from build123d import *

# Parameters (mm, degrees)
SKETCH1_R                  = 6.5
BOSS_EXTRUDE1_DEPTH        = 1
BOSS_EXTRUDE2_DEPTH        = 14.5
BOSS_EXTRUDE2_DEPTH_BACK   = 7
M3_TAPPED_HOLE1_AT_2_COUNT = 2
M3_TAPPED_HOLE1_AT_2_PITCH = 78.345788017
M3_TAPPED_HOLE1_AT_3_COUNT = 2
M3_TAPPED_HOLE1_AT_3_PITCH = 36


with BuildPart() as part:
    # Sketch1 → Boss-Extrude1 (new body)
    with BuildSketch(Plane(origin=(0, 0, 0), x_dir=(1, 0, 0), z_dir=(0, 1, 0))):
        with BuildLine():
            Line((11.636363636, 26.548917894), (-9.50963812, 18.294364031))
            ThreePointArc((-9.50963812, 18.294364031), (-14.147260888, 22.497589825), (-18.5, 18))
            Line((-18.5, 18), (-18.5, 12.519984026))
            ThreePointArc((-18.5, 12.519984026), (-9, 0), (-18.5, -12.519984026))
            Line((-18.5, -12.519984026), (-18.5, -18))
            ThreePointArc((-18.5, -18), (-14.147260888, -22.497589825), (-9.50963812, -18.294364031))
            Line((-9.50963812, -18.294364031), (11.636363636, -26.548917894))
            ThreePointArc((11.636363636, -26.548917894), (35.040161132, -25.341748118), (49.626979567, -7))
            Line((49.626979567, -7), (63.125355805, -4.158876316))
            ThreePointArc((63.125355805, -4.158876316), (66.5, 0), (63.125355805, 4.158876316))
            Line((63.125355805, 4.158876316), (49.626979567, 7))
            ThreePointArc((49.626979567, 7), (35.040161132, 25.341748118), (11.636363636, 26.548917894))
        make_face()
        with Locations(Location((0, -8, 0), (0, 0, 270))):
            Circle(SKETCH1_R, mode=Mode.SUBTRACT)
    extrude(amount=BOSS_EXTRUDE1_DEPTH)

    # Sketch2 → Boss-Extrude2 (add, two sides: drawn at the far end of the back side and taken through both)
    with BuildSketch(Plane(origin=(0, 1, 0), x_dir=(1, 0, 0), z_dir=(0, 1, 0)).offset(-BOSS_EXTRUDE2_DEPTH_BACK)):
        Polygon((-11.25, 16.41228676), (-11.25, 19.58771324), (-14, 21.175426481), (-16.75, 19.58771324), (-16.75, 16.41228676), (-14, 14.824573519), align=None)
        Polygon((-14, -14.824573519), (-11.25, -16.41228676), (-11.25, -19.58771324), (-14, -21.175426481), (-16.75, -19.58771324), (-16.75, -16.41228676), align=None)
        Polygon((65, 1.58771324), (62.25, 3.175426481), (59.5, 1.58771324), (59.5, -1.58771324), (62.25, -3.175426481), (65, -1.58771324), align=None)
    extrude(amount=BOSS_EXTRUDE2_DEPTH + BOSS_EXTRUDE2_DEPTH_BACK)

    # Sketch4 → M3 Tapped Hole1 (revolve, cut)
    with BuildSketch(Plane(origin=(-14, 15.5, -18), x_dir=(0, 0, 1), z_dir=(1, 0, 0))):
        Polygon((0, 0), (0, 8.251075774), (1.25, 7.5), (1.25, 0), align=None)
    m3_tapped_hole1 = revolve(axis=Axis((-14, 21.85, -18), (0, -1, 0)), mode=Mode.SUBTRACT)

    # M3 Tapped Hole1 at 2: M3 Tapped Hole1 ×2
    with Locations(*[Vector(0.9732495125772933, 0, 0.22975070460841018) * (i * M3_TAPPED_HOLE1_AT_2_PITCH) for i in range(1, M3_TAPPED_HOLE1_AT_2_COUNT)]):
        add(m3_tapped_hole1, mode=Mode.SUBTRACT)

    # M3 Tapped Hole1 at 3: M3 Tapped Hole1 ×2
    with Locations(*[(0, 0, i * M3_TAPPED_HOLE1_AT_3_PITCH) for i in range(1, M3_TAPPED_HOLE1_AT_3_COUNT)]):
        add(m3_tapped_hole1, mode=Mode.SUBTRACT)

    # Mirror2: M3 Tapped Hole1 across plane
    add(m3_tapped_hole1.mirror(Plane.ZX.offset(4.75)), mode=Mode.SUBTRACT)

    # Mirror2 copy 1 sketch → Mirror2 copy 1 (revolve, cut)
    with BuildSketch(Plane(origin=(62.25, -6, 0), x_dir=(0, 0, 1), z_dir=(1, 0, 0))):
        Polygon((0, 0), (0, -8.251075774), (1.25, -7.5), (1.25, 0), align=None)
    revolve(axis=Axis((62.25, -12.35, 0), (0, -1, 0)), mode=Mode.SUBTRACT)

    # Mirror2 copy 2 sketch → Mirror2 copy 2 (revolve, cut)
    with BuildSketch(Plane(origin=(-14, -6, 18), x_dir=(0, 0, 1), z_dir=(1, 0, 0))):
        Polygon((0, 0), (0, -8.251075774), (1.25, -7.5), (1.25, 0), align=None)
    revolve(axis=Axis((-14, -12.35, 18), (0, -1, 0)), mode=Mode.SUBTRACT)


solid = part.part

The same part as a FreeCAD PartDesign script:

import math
import FreeCAD as App
import Part
import Sketcher

V = App.Vector
Q = App.Units.Quantity

doc = App.newDocument("Part")
body = doc.addObject("PartDesign::Body", "Body")

# Sketch on XZ plane
sketch1 = body.newObject("Sketcher::SketchObject", "Sketch")
sketch1.AttachmentSupport = (doc.getObject("XZ_Plane"), [""])
sketch1.MapMode = "FlatFace"
sketch1.addGeometry(Part.LineSegment(V(11.636364, -26.548918, 0), V(-9.509638, -18.294364, 0)), False)
sketch1.addGeometry(Part.ArcOfCircle(Part.Circle(V(-14, -18, 0), V(0, 0, 1), 4.5), math.radians(180), math.radians(356.249363)), False)
sketch1.addGeometry(Part.LineSegment(V(-18.5, -18, 0), V(-18.5, -12.519984, 0)), False)
sketch1.addGeometry(Part.ArcOfCircle(Part.Circle(V(-22, 0, 0), V(0, 0, 1), 13), math.radians(-74.381502), math.radians(74.381502)), False)
sketch1.addGeometry(Part.LineSegment(V(-18.5, 12.519984, 0), V(-18.5, 18, 0)), False)
sketch1.addGeometry(Part.ArcOfCircle(Part.Circle(V(-14, 18, 0), V(0, 0, 1), 4.5), math.radians(3.750637), math.radians(180)), False)
sketch1.addGeometry(Part.LineSegment(V(-9.509638, 18.294364, 0), V(11.636364, 26.548918, 0)), False)
sketch1.addGeometry(Part.ArcOfCircle(Part.Circle(V(22, 0, 0), V(0, 0, 1), 28.5), math.radians(14.218124), math.radians(111.323686)), False)
sketch1.addGeometry(Part.LineSegment(V(49.62698, 7, 0), V(63.125356, 4.158876, 0)), False)
sketch1.addGeometry(Part.ArcOfCircle(Part.Circle(V(62.25, 0, 0), V(0, 0, 1), 4.25), math.radians(-78.113942), math.radians(78.113942)), False)
sketch1.addGeometry(Part.LineSegment(V(63.125356, -4.158876, 0), V(49.62698, -7, 0)), False)
sketch1.addGeometry(Part.ArcOfCircle(Part.Circle(V(22, 0, 0), V(0, 0, 1), 28.5), math.radians(-111.323686), math.radians(-14.218124)), False)
sketch1.addGeometry(Part.Circle(V(0, 8, 0), V(0, 0, 1), 6.5), False)
sketch1.addConstraint(Sketcher.Constraint("Coincident", 0, 2, 1, 2))
sketch1.addConstraint(Sketcher.Constraint("Tangent", 1, 1, 2, 1))
sketch1.addConstraint(Sketcher.Constraint("Coincident", 2, 2, 3, 1))
sketch1.addConstraint(Sketcher.Constraint("Coincident", 3, 2, 4, 1))
sketch1.addConstraint(Sketcher.Constraint("Tangent", 4, 2, 5, 2))
sketch1.addConstraint(Sketcher.Constraint("Coincident", 5, 1, 6, 1))
sketch1.addConstraint(Sketcher.Constraint("Tangent", 6, 2, 7, 2))
sketch1.addConstraint(Sketcher.Constraint("Coincident", 7, 1, 8, 1))
sketch1.addConstraint(Sketcher.Constraint("Tangent", 8, 2, 9, 2))
sketch1.addConstraint(Sketcher.Constraint("Tangent", 9, 1, 10, 1))
sketch1.addConstraint(Sketcher.Constraint("Coincident", 10, 2, 11, 2))
sketch1.addConstraint(Sketcher.Constraint("Tangent", 11, 1, 0, 1))
sketch1.addConstraint(Sketcher.Constraint("Vertical", 2))
sketch1.addConstraint(Sketcher.Constraint("Vertical", 4))
sketch1.addConstraint(Sketcher.Constraint("Coincident", 11, 3, 7, 3))
sketch1.addConstraint(Sketcher.Constraint("Equal", 1, 5))
sketch1.addConstraint(Sketcher.Constraint("Equal", 7, 11))
sketch1.addConstraint(Sketcher.Constraint("Symmetric", 3, 3, 7, 3, -1, 1))
sketch1.addConstraint(Sketcher.Constraint("Symmetric", 1, 3, 5, 3, -1))
sketch1.addConstraint(Sketcher.Constraint("Symmetric", 8, 2, 9, 1, -1))
sketch1.addConstraint(Sketcher.Constraint("Symmetric", 6, 2, 11, 1, -1))
sketch1.addConstraint(Sketcher.Constraint("PointOnObject", 12, 3, -2))
sketch1.addConstraint(Sketcher.Constraint("Diameter", 12, Q("13 mm")))
sketch1.addConstraint(Sketcher.Constraint("Radius", 3, Q("13 mm")))
sketch1.addConstraint(Sketcher.Constraint("Radius", 1, Q("4.5 mm")))
sketch1.addConstraint(Sketcher.Constraint("Radius", 7, Q("28.5 mm")))
sketch1.addConstraint(Sketcher.Constraint("Radius", 9, Q("4.25 mm")))
sketch1.addConstraint(Sketcher.Constraint("DistanceX", 1, 3, -1, 1, Q("14 mm")))
sketch1.addConstraint(Sketcher.Constraint("DistanceY", 1, 3, -1, 1, Q("18 mm")))
sketch1.addConstraint(Sketcher.Constraint("DistanceX", 3, 3, -1, 1, Q("22 mm")))
sketch1.addConstraint(Sketcher.Constraint("DistanceY", -1, 1, 12, 3, Q("8 mm")))
sketch1.addConstraint(Sketcher.Constraint("DistanceY", -1, 1, 7, 1, Q("7 mm")))
sketch1.addConstraint(Sketcher.Constraint("DistanceX", -1, 1, 9, 3, Q("62.25 mm")))
sketch1.addConstraint(Sketcher.Constraint("DistanceX", 5, 1, 6, 2, Q("21.146002 mm")))
pad1 = body.newObject("PartDesign::Pad", "Pad")
pad1.Profile = sketch1
pad1.Length = 1
pad1.Reversed = True

# Sketch on XZ plane
sketch2 = body.newObject("Sketcher::SketchObject", "Sketch001")
sketch2.AttachmentSupport = (doc.getObject("XZ_Plane"), [""])
sketch2.MapMode = "FlatFace"
sketch2.AttachmentOffset = App.Placement(V(0, 0, -1), App.Rotation())
sketch2.addGeometry(Part.LineSegment(V(-11.25, -16.412287, 0), V(-11.25, -19.587713, 0)), False)
sketch2.addGeometry(Part.LineSegment(V(-11.25, -19.587713, 0), V(-14, -21.175426, 0)), False)
sketch2.addGeometry(Part.LineSegment(V(-14, -21.175426, 0), V(-16.75, -19.587713, 0)), False)
sketch2.addGeometry(Part.LineSegment(V(-16.75, -19.587713, 0), V(-16.75, -16.412287, 0)), False)
sketch2.addGeometry(Part.LineSegment(V(-16.75, -16.412287, 0), V(-14, -14.824574, 0)), False)
sketch2.addGeometry(Part.LineSegment(V(-14, -14.824574, 0), V(-11.25, -16.412287, 0)), False)
sketch2.addGeometry(Part.LineSegment(V(-11.25, 16.412287, 0), V(-14, 14.824574, 0)), False)
sketch2.addGeometry(Part.LineSegment(V(-14, 14.824574, 0), V(-16.75, 16.412287, 0)), False)
sketch2.addGeometry(Part.LineSegment(V(-16.75, 16.412287, 0), V(-16.75, 19.587713, 0)), False)
sketch2.addGeometry(Part.LineSegment(V(-16.75, 19.587713, 0), V(-14, 21.175426, 0)), False)
sketch2.addGeometry(Part.LineSegment(V(-14, 21.175426, 0), V(-11.25, 19.587713, 0)), False)
sketch2.addGeometry(Part.LineSegment(V(-11.25, 19.587713, 0), V(-11.25, 16.412287, 0)), False)
sketch2.addGeometry(Part.LineSegment(V(65, -1.587713, 0), V(62.25, -3.175426, 0)), False)
sketch2.addGeometry(Part.LineSegment(V(62.25, -3.175426, 0), V(59.5, -1.587713, 0)), False)
sketch2.addGeometry(Part.LineSegment(V(59.5, -1.587713, 0), V(59.5, 1.587713, 0)), False)
sketch2.addGeometry(Part.LineSegment(V(59.5, 1.587713, 0), V(62.25, 3.175426, 0)), False)
sketch2.addGeometry(Part.LineSegment(V(62.25, 3.175426, 0), V(65, 1.587713, 0)), False)
sketch2.addGeometry(Part.LineSegment(V(65, 1.587713, 0), V(65, -1.587713, 0)), False)
sketch2.addConstraint(Sketcher.Constraint("Coincident", 0, 2, 1, 1))
sketch2.addConstraint(Sketcher.Constraint("Coincident", 1, 2, 2, 1))
sketch2.addConstraint(Sketcher.Constraint("Coincident", 2, 2, 3, 1))
sketch2.addConstraint(Sketcher.Constraint("Coincident", 3, 2, 4, 1))
sketch2.addConstraint(Sketcher.Constraint("Coincident", 4, 2, 5, 1))
sketch2.addConstraint(Sketcher.Constraint("Coincident", 5, 2, 0, 1))
sketch2.addConstraint(Sketcher.Constraint("Coincident", 6, 2, 7, 1))
sketch2.addConstraint(Sketcher.Constraint("Coincident", 7, 2, 8, 1))
sketch2.addConstraint(Sketcher.Constraint("Coincident", 8, 2, 9, 1))
sketch2.addConstraint(Sketcher.Constraint("Coincident", 9, 2, 10, 1))
sketch2.addConstraint(Sketcher.Constraint("Coincident", 10, 2, 11, 1))
sketch2.addConstraint(Sketcher.Constraint("Coincident", 11, 2, 6, 1))
sketch2.addConstraint(Sketcher.Constraint("Coincident", 12, 2, 13, 1))
sketch2.addConstraint(Sketcher.Constraint("Coincident", 13, 2, 14, 1))
sketch2.addConstraint(Sketcher.Constraint("Coincident", 14, 2, 15, 1))
sketch2.addConstraint(Sketcher.Constraint("Coincident", 15, 2, 16, 1))
sketch2.addConstraint(Sketcher.Constraint("Coincident", 16, 2, 17, 1))
sketch2.addConstraint(Sketcher.Constraint("Coincident", 17, 2, 12, 1))
sketch2.addConstraint(Sketcher.Constraint("Vertical", 0))
sketch2.addConstraint(Sketcher.Constraint("Vertical", 3))
sketch2.addConstraint(Sketcher.Constraint("Vertical", 8))
sketch2.addConstraint(Sketcher.Constraint("Vertical", 11))
sketch2.addConstraint(Sketcher.Constraint("Vertical", 14))
sketch2.addConstraint(Sketcher.Constraint("Vertical", 17))
sketch2.addConstraint(Sketcher.Constraint("Symmetric", 4, 2, 6, 2, -1))
sketch2.addConstraint(Sketcher.Constraint("Symmetric", 3, 2, 7, 2, -1))
sketch2.addConstraint(Sketcher.Constraint("Symmetric", 1, 2, 9, 2, -1))
sketch2.addConstraint(Sketcher.Constraint("Symmetric", 0, 2, 10, 2, -1))
sketch2.addConstraint(Sketcher.Constraint("Symmetric", 12, 2, 15, 2, -1))
sketch2.addConstraint(Sketcher.Constraint("Parallel", 1, 4))
sketch2.addConstraint(Sketcher.Constraint("Parallel", 2, 5))
sketch2.addConstraint(Sketcher.Constraint("Parallel", 4, 6))
sketch2.addConstraint(Sketcher.Constraint("Parallel", 5, 7))
sketch2.addConstraint(Sketcher.Constraint("Parallel", 6, 9))
sketch2.addConstraint(Sketcher.Constraint("Parallel", 9, 12))
sketch2.addConstraint(Sketcher.Constraint("Parallel", 10, 13))
sketch2.addConstraint(Sketcher.Constraint("Parallel", 12, 15))
sketch2.addConstraint(Sketcher.Constraint("Parallel", 13, 16))
sketch2.addConstraint(Sketcher.Constraint("Horizontal", 0, 2, 2, 2))
sketch2.addConstraint(Sketcher.Constraint("Horizontal", 3, 2, 5, 2))
sketch2.addConstraint(Sketcher.Constraint("Horizontal", 14, 2, 16, 2))
sketch2.addConstraint(Sketcher.Constraint("Equal", 11, 14))
sketch2.addConstraint(Sketcher.Constraint("Equal", 10, 12))
sketch2.addConstraint(Sketcher.Constraint("Angle", 1, Q("-150 deg")))
sketch2.addConstraint(Sketcher.Constraint("DistanceX", 1, 2, -1, 1, Q("14 mm")))
sketch2.addConstraint(Sketcher.Constraint("DistanceX", -1, 1, 16, 2, Q("65 mm")))
sketch2.addConstraint(Sketcher.Constraint("DistanceY", 2, 2, 7, 2, Q("36 mm")))
sketch2.addConstraint(Sketcher.Constraint("DistanceX", -1, 1, 13, 2, Q("59.5 mm")))
sketch2.addConstraint(Sketcher.Constraint("DistanceY", 0, 2, 0, 1, Q("3.175426 mm")))
pad2 = body.newObject("PartDesign::Pad", "Pad001")
pad2.Profile = sketch2
pad2.Type = "TwoLengths"
pad2.Length = 14.5
pad2.Length2 = 7
pad2.Reversed = True

# Sketch on YZ plane
sketch3 = body.newObject("Sketcher::SketchObject", "Sketch002")
sketch3.AttachmentSupport = (doc.getObject("YZ_Plane"), [""])
sketch3.MapMode = "FlatFace"
sketch3.AttachmentOffset = App.Placement(V(0, 0, -14), App.Rotation())
sketch3.addGeometry(Part.LineSegment(V(7.248924, -18, 0), V(15.5, -18, 0)), False)
sketch3.addGeometry(Part.LineSegment(V(15.5, -18, 0), V(15.5, -16.75, 0)), False)
sketch3.addGeometry(Part.LineSegment(V(15.5, -16.75, 0), V(8, -16.75, 0)), False)
sketch3.addGeometry(Part.LineSegment(V(8, -16.75, 0), V(7.248924, -18, 0)), False)
sketch3.addGeometry(Part.LineSegment(V(15.5, -18, 0), V(7.248924, -18, 0)), True)  # axis
sketch3.addConstraint(Sketcher.Constraint("Coincident", 0, 2, 1, 1))
sketch3.addConstraint(Sketcher.Constraint("Coincident", 1, 2, 2, 1))
sketch3.addConstraint(Sketcher.Constraint("Coincident", 2, 2, 3, 1))
sketch3.addConstraint(Sketcher.Constraint("Coincident", 3, 2, 0, 1))
sketch3.addConstraint(Sketcher.Constraint("Horizontal", 0))
sketch3.addConstraint(Sketcher.Constraint("Vertical", 1))
sketch3.addConstraint(Sketcher.Constraint("Horizontal", 2))
sketch3.addConstraint(Sketcher.Constraint("Horizontal", 4))
sketch3.addConstraint(Sketcher.Constraint("Coincident", 4, 1, 0, 2))
sketch3.addConstraint(Sketcher.Constraint("Equal", 0, 4))
sketch3.addConstraint(Sketcher.Constraint("Angle", 3, Q("-121 deg")))
sketch3.addConstraint(Sketcher.Constraint("DistanceX", 2, 2, 2, 1, Q("7.5 mm")))
sketch3.addConstraint(Sketcher.Constraint("DistanceY", 0, 2, -1, 1, Q("18 mm")))
sketch3.addConstraint(Sketcher.Constraint("DistanceX", -1, 1, 2, 2, Q("8 mm")))
sketch3.addConstraint(Sketcher.Constraint("DistanceY", 1, 1, 1, 2, Q("1.25 mm")))
groove = body.newObject("PartDesign::Groove", "Groove")
groove.Profile = sketch3
groove.ReferenceAxis = (sketch3, ["Axis0"])
groove.Angle = 360
doc.recompute()

datumline = body.newObject("PartDesign::Line", "DatumLine")
datumline.Placement = App.Placement(V(0, 0, 0), App.Rotation(V(0, 0, 1), V(0.973249513, 0, 0.229750705)))
linearpattern = body.newObject("PartDesign::LinearPattern", "LinearPattern")
linearpattern.Originals = [groove]
linearpattern.Direction = (datumline, [""])
linearpattern.Mode = "offset"
linearpattern.Offset = 78.345788
linearpattern.Occurrences = 2
body.Tip = linearpattern
doc.recompute()

linearpattern2 = body.newObject("PartDesign::LinearPattern", "LinearPattern001")
linearpattern2.Originals = [groove]
linearpattern2.Direction = (doc.getObject("Z_Axis"), [""])
linearpattern2.Mode = "offset"
linearpattern2.Offset = 36
linearpattern2.Occurrences = 2
body.Tip = linearpattern2
doc.recompute()

datumplane = body.newObject("PartDesign::Plane", "DatumPlane")
datumplane.AttachmentSupport = (doc.getObject("XZ_Plane"), [""])
datumplane.MapMode = "FlatFace"
datumplane.AttachmentOffset = App.Placement(V(0, 0, -4.75), App.Rotation())
mirrored = body.newObject("PartDesign::Mirrored", "Mirrored")
mirrored.Originals = [groove]
mirrored.MirrorPlane = (datumplane, [""])
body.Tip = mirrored

# Sketch on YZ plane
sketch4 = body.newObject("Sketcher::SketchObject", "Sketch003")
sketch4.AttachmentSupport = (doc.getObject("YZ_Plane"), [""])
sketch4.MapMode = "FlatFace"
sketch4.AttachmentOffset = App.Placement(V(0, 0, 62.25), App.Rotation())
sketch4.addGeometry(Part.LineSegment(V(-6, 0, 0), V(2.251076, 0, 0)), False)
sketch4.addGeometry(Part.LineSegment(V(2.251076, 0, 0), V(1.5, 1.25, 0)), False)
sketch4.addGeometry(Part.LineSegment(V(1.5, 1.25, 0), V(-6, 1.25, 0)), False)
sketch4.addGeometry(Part.LineSegment(V(-6, 1.25, 0), V(-6, 0, 0)), False)
sketch4.addConstraint(Sketcher.Constraint("Coincident", 0, 2, 1, 1))
sketch4.addConstraint(Sketcher.Constraint("Coincident", 1, 2, 2, 1))
sketch4.addConstraint(Sketcher.Constraint("Coincident", 2, 2, 3, 1))
sketch4.addConstraint(Sketcher.Constraint("Coincident", 3, 2, 0, 1))
sketch4.addConstraint(Sketcher.Constraint("Horizontal", 0))
sketch4.addConstraint(Sketcher.Constraint("Horizontal", 2))
sketch4.addConstraint(Sketcher.Constraint("Vertical", 3))
sketch4.addConstraint(Sketcher.Constraint("PointOnObject", 0, 2, -1))
sketch4.addConstraint(Sketcher.Constraint("Angle", 1, Q("121 deg")))
sketch4.addConstraint(Sketcher.Constraint("DistanceX", 2, 2, 2, 1, Q("7.5 mm")))
sketch4.addConstraint(Sketcher.Constraint("DistanceX", 2, 2, -1, 1, Q("6 mm")))
sketch4.addConstraint(Sketcher.Constraint("DistanceY", 3, 2, 3, 1, Q("1.25 mm")))
groove2 = body.newObject("PartDesign::Groove", "Groove001")
groove2.Profile = sketch4
groove2.ReferenceAxis = (sketch4, ["H_Axis"])
groove2.Angle = 360

# Sketch on YZ plane
sketch5 = body.newObject("Sketcher::SketchObject", "Sketch004")
sketch5.AttachmentSupport = (doc.getObject("YZ_Plane"), [""])
sketch5.MapMode = "FlatFace"
sketch5.AttachmentOffset = App.Placement(V(0, 0, -14), App.Rotation())
sketch5.addGeometry(Part.LineSegment(V(-6, 18, 0), V(2.251076, 18, 0)), False)
sketch5.addGeometry(Part.LineSegment(V(2.251076, 18, 0), V(1.5, 19.25, 0)), False)
sketch5.addGeometry(Part.LineSegment(V(1.5, 19.25, 0), V(-6, 19.25, 0)), False)
sketch5.addGeometry(Part.LineSegment(V(-6, 19.25, 0), V(-6, 18, 0)), False)
sketch5.addGeometry(Part.LineSegment(V(2.251076, 18, 0), V(-6, 18, 0)), True)  # axis
sketch5.addConstraint(Sketcher.Constraint("Coincident", 0, 2, 1, 1))
sketch5.addConstraint(Sketcher.Constraint("Coincident", 1, 2, 2, 1))
sketch5.addConstraint(Sketcher.Constraint("Coincident", 2, 2, 3, 1))
sketch5.addConstraint(Sketcher.Constraint("Coincident", 3, 2, 0, 1))
sketch5.addConstraint(Sketcher.Constraint("Horizontal", 0))
sketch5.addConstraint(Sketcher.Constraint("Horizontal", 2))
sketch5.addConstraint(Sketcher.Constraint("Vertical", 3))
sketch5.addConstraint(Sketcher.Constraint("Horizontal", 4))
sketch5.addConstraint(Sketcher.Constraint("Coincident", 4, 1, 0, 2))
sketch5.addConstraint(Sketcher.Constraint("Vertical", 2, 2, 4, 2))
sketch5.addConstraint(Sketcher.Constraint("Angle", 1, Q("121 deg")))
sketch5.addConstraint(Sketcher.Constraint("DistanceX", 2, 2, 2, 1, Q("7.5 mm")))
sketch5.addConstraint(Sketcher.Constraint("DistanceY", -1, 1, 0, 2, Q("18 mm")))
sketch5.addConstraint(Sketcher.Constraint("DistanceX", 2, 2, -1, 1, Q("6 mm")))
sketch5.addConstraint(Sketcher.Constraint("DistanceY", 3, 2, 3, 1, Q("1.25 mm")))
groove3 = body.newObject("PartDesign::Groove", "Groove002")
groove3.Profile = sketch5
groove3.ReferenceAxis = (sketch5, ["Axis0"])
groove3.Angle = 360

doc.recompute()
